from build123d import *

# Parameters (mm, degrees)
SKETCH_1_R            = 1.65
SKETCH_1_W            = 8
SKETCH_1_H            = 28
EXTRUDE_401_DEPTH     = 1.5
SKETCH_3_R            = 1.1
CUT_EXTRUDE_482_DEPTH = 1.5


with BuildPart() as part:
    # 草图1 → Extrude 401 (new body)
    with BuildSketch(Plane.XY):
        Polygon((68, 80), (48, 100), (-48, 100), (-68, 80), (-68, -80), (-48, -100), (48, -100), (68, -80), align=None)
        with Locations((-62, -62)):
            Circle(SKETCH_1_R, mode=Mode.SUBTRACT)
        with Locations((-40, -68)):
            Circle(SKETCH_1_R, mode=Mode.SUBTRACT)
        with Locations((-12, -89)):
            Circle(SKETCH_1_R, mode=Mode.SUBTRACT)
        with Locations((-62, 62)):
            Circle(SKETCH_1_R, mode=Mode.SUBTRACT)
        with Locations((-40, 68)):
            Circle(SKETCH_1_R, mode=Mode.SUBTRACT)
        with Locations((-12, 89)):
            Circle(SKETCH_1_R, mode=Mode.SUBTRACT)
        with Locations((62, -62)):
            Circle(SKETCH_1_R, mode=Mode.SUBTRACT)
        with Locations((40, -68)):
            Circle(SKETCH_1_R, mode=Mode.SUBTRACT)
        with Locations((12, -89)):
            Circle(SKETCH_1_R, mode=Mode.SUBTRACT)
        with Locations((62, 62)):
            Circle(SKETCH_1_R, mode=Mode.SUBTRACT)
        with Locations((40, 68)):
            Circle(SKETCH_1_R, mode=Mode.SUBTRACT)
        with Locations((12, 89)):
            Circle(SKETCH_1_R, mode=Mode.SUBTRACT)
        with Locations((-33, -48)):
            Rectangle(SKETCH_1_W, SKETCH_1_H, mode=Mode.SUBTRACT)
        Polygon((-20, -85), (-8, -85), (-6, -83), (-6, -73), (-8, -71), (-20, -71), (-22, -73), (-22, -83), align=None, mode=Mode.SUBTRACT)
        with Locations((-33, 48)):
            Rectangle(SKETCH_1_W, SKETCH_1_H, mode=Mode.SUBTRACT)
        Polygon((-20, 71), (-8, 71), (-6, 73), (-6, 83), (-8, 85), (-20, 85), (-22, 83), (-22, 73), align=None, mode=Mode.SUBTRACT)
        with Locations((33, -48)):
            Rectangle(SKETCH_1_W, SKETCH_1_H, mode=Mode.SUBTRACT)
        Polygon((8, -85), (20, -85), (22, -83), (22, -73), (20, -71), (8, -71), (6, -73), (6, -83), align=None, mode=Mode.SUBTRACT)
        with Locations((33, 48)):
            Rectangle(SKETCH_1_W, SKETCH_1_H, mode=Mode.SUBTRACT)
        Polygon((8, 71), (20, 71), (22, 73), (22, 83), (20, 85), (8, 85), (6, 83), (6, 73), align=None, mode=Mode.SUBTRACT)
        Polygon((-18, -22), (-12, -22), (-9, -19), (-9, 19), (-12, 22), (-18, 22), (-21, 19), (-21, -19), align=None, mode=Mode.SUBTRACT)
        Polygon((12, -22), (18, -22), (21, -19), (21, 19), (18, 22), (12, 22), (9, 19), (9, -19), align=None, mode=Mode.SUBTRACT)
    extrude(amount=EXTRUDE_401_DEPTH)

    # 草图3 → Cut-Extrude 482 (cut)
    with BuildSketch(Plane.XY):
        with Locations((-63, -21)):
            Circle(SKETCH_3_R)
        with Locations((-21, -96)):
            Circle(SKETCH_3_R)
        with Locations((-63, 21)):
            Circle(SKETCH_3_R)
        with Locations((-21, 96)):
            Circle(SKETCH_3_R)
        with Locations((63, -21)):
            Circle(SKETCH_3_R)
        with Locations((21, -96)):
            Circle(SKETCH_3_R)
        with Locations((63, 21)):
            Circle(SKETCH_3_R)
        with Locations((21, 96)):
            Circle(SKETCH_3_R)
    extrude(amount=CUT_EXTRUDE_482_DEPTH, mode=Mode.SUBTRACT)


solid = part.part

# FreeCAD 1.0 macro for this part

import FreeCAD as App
import Part
import Sketcher

V = App.Vector
Q = App.Units.Quantity


def add_polygon(sketch, points):
    """Adds a closed chain of lines whose ends are joined by coincident constraints."""
    first, n = sketch.GeometryCount, len(points)
    for a, b in zip(points, points[1:] + points[:1]):
        sketch.addGeometry(Part.LineSegment(App.Vector(*a, 0), App.Vector(*b, 0)), False)
    for i in range(n):
        sketch.addConstraint(Sketcher.Constraint("Coincident", first + i, 2, first + (i + 1) % n, 1))

doc = App.newDocument("Part")
body = doc.addObject("PartDesign::Body", "Body")

sketch1 = doc.addObject("Sketcher::SketchObject", "Sketch")
body.addObject(sketch1)
sketch1.AttachmentSupport = (doc.XY_Plane, [""])
sketch1.MapMode = "FlatFace"
add_polygon(sketch1, [(68, 80), (48, 100), (-48, 100), (-68, 80), (-68, -80), (-48, -100), (48, -100), (68, -80)])
sketch1.addGeometry(Part.Circle(V(-40, -68, 0), V(0, 0, 1), 1.6), False)
sketch1.addGeometry(Part.Circle(V(-62, -62, 0), V(0, 0, 1), 1.6), False)
add_polygon(sketch1, [(-29, -62), (-37, -62), (-37, -34), (-29, -34)])
sketch1.addGeometry(Part.Circle(V(-12, -89, 0), V(0, 0, 1), 1.6), False)
add_polygon(sketch1, [(-8, -85), (-20, -85), (-22, -83), (-22, -73), (-20, -71), (-8, -71), (-6, -73), (-6, -83)])
sketch1.addGeometry(Part.Circle(V(12, -89, 0), V(0, 0, 1), 1.6), False)
add_polygon(sketch1, [(20, -85), (8, -85), (6, -83), (6, -73), (8, -71), (20, -71), (22, -73), (22, -83)])
sketch1.addGeometry(Part.Circle(V(40, -68, 0), V(0, 0, 1), 1.6), False)
add_polygon(sketch1, [(37, -62), (29, -62), (29, -34), (37, -34)])
sketch1.addGeometry(Part.Circle(V(62, -62, 0), V(0, 0, 1), 1.6), False)
add_polygon(sketch1, [(-12, -22), (-18, -22), (-21, -19), (-21, 19), (-18, 22), (-12, 22), (-9, 19), (-9, -19)])
sketch1.addGeometry(Part.Circle(V(-62, 62, 0), V(0, 0, 1), 1.6), False)
add_polygon(sketch1, [(-29, 34), (-37, 34), (-37, 62), (-29, 62)])
sketch1.addGeometry(Part.Circle(V(-40, 68, 0), V(0, 0, 1), 1.6), False)
add_polygon(sketch1, [(-8, 71), (-20, 71), (-22, 73), (-22, 83), (-20, 85), (-8, 85), (-6, 83), (-6, 73)])
sketch1.addGeometry(Part.Circle(V(-12, 89, 0), V(0, 0, 1), 1.6), False)
add_polygon(sketch1, [(18, -22), (12, -22), (9, -19), (9, 19), (12, 22), (18, 22), (21, 19), (21, -19)])
add_polygon(sketch1, [(20, 71), (8, 71), (6, 73), (6, 83), (8, 85), (20, 85), (22, 83), (22, 73)])
sketch1.addGeometry(Part.Circle(V(12, 89, 0), V(0, 0, 1), 1.6), False)
add_polygon(sketch1, [(37, 34), (29, 34), (29, 62), (37, 62)])
sketch1.addGeometry(Part.Circle(V(62, 62, 0), V(0, 0, 1), 1.6), False)
sketch1.addGeometry(Part.Circle(V(40, 68, 0), V(0, 0, 1), 1.6), False)
sketch1.addConstraint(Sketcher.Constraint("Horizontal", 1))
sketch1.addConstraint(Sketcher.Constraint("Vertical", 3))
sketch1.addConstraint(Sketcher.Constraint("Horizontal", 5))
sketch1.addConstraint(Sketcher.Constraint("Vertical", 7))
sketch1.addConstraint(Sketcher.Constraint("Horizontal", 10))
sketch1.addConstraint(Sketcher.Constraint("Vertical", 11))
sketch1.addConstraint(Sketcher.Constraint("Horizontal", 12))
sketch1.addConstraint(Sketcher.Constraint("Vertical", 13))
sketch1.addConstraint(Sketcher.Constraint("Horizontal", 15))
sketch1.addConstraint(Sketcher.Constraint("Vertical", 17))
sketch1.addConstraint(Sketcher.Constraint("Horizontal", 19))
sketch1.addConstraint(Sketcher.Constraint("Vertical", 21))
sketch1.addConstraint(Sketcher.Constraint("Horizontal", 24))
sketch1.addConstraint(Sketcher.Constraint("Vertical", 26))
sketch1.addConstraint(Sketcher.Constraint("Horizontal", 28))
sketch1.addConstraint(Sketcher.Constraint("Vertical", 30))
sketch1.addConstraint(Sketcher.Constraint("Horizontal", 33))
sketch1.addConstraint(Sketcher.Constraint("Vertical", 34))
sketch1.addConstraint(Sketcher.Constraint("Horizontal", 35))
sketch1.addConstraint(Sketcher.Constraint("Vertical", 36))
sketch1.addConstraint(Sketcher.Constraint("Horizontal", 38))
sketch1.addConstraint(Sketcher.Constraint("Vertical", 40))
sketch1.addConstraint(Sketcher.Constraint("Horizontal", 42))
sketch1.addConstraint(Sketcher.Constraint("Vertical", 44))
sketch1.addConstraint(Sketcher.Constraint("Horizontal", 47))
sketch1.addConstraint(Sketcher.Constraint("Vertical", 48))
sketch1.addConstraint(Sketcher.Constraint("Horizontal", 49))
sketch1.addConstraint(Sketcher.Constraint("Vertical", 50))
sketch1.addConstraint(Sketcher.Constraint("Horizontal", 52))
sketch1.addConstraint(Sketcher.Constraint("Vertical", 54))
sketch1.addConstraint(Sketcher.Constraint("Horizontal", 56))
sketch1.addConstraint(Sketcher.Constraint("Vertical", 58))
sketch1.addConstraint(Sketcher.Constraint("Horizontal", 61))
sketch1.addConstraint(Sketcher.Constraint("Vertical", 63))
sketch1.addConstraint(Sketcher.Constraint("Horizontal", 65))
sketch1.addConstraint(Sketcher.Constraint("Vertical", 67))
sketch1.addConstraint(Sketcher.Constraint("Horizontal", 69))
sketch1.addConstraint(Sketcher.Constraint("Vertical", 71))
sketch1.addConstraint(Sketcher.Constraint("Horizontal", 73))
sketch1.addConstraint(Sketcher.Constraint("Vertical", 75))
sketch1.addConstraint(Sketcher.Constraint("Horizontal", 78))
sketch1.addConstraint(Sketcher.Constraint("Vertical", 79))
sketch1.addConstraint(Sketcher.Constraint("Horizontal", 80))
sketch1.addConstraint(Sketcher.Constraint("Vertical", 81))
sketch1.addConstraint(Sketcher.Constraint("Equal", 8, 9))
sketch1.addConstraint(Sketcher.Constraint("Equal", 9, 14))
sketch1.addConstraint(Sketcher.Constraint("Equal", 14, 23))
sketch1.addConstraint(Sketcher.Constraint("Equal", 23, 32))
sketch1.addConstraint(Sketcher.Constraint("Equal", 32, 37))
sketch1.addConstraint(Sketcher.Constraint("Equal", 37, 46))
sketch1.addConstraint(Sketcher.Constraint("Equal", 46, 51))
sketch1.addConstraint(Sketcher.Constraint("Equal", 51, 60))
sketch1.addConstraint(Sketcher.Constraint("Equal", 60, 77))
sketch1.addConstraint(Sketcher.Constraint("Equal", 77, 82))
sketch1.addConstraint(Sketcher.Constraint("Equal", 82, 83))
sketch1.addConstraint(Sketcher.Constraint("Symmetric", 37, 3, 46, 3, -1, 1))
sketch1.addConstraint(Sketcher.Constraint("Symmetric", 32, 3, 51, 3, -1, 1))
sketch1.addConstraint(Sketcher.Constraint("Symmetric", 23, 3, 60, 3, -1, 1))
sketch1.addConstraint(Sketcher.Constraint("Symmetric", 14, 3, 77, 3, -1, 1))
sketch1.addConstraint(Sketcher.Constraint("Symmetric", 9, 3, 82, 3, -1, 1))
sketch1.addConstraint(Sketcher.Constraint("Symmetric", 8, 3, 83, 3, -1, 1))
sketch1.addConstraint(Sketcher.Constraint("Symmetric", 0, 2, 4, 2, -1, 1))
sketch1.addConstraint(Sketcher.Constraint("Symmetric", 2, 2, 6, 2, -1, 1))
sketch1.addConstraint(Sketcher.Constraint("Symmetric", 35, 2, 47, 2, -1, 1))
sketch1.addConstraint(Sketcher.Constraint("Symmetric", 33, 2, 49, 2, -1, 1))
sketch1.addConstraint(Sketcher.Constraint("Symmetric", 28, 2, 52, 2, -1, 1))
sketch1.addConstraint(Sketcher.Constraint("Symmetric", 29, 2, 53, 2, -1, 1))
sketch1.addConstraint(Sketcher.Constraint("Symmetric", 31, 2, 55, 2, -1, 1))
sketch1.addConstraint(Sketcher.Constraint("Symmetric", 25, 2, 57, 2, -1, 1))
sketch1.addConstraint(Sketcher.Constraint("Symmetric", 42, 2, 61, 2, -1, 1))
sketch1.addConstraint(Sketcher.Constraint("Symmetric", 43, 2, 62, 2, -1, 1))
sketch1.addConstraint(Sketcher.Constraint("Symmetric", 45, 2, 64, 2, -1, 1))
sketch1.addConstraint(Sketcher.Constraint("Symmetric", 39, 2, 66, 2, -1, 1))
sketch1.addConstraint(Sketcher.Constraint("Symmetric", 19, 2, 69, 2, -1, 1))
sketch1.addConstraint(Sketcher.Constraint("Symmetric", 20, 2, 70, 2, -1, 1))
sketch1.addConstraint(Sketcher.Constraint("Symmetric", 22, 2, 72, 2, -1, 1))
sketch1.addConstraint(Sketcher.Constraint("Symmetric", 16, 2, 74, 2, -1, 1))
sketch1.addConstraint(Sketcher.Constraint("Symmetric", 12, 2, 78, 2, -1, 1))
sketch1.addConstraint(Sketcher.Constraint("Symmetric", 10, 2, 80, 2, -1, 1))
sketch1.addConstraint(Sketcher.Constraint("Symmetric", 14, 3, 23, 3, -2))
sketch1.addConstraint(Sketcher.Constraint("Symmetric", 8, 3, 32, 3, -2))
sketch1.addConstraint(Sketcher.Constraint("Symmetric", 9, 3, 37, 3, -2))
sketch1.addConstraint(Sketcher.Constraint("Symmetric", 22, 2, 24, 2, -2))
sketch1.addConstraint(Sketcher.Constraint("Symmetric", 21, 2, 25, 2, -2))
sketch1.addConstraint(Sketcher.Constraint("Symmetric", 19, 2, 27, 2, -2))
sketch1.addConstraint(Sketcher.Constraint("Symmetric", 17, 2, 29, 2, -2))
sketch1.addConstraint(Sketcher.Constraint("Symmetric", 13, 2, 33, 2, -2))
sketch1.addConstraint(Sketcher.Constraint("Symmetric", 11, 2, 35, 2, -2))
sketch1.addConstraint(Sketcher.Constraint("Symmetric", 45, 2, 61, 2, -2))
sketch1.addConstraint(Sketcher.Constraint("Perpendicular", 0, 2))
sketch1.addConstraint(Sketcher.Constraint("Perpendicular", 2, 4))
sketch1.addConstraint(Sketcher.Constraint("Perpendicular", 4, 6))
sketch1.addConstraint(Sketcher.Constraint("Perpendicular", 6, 16))
sketch1.addConstraint(Sketcher.Constraint("Perpendicular", 16, 18))
sketch1.addConstraint(Sketcher.Constraint("Perpendicular", 18, 20))
sketch1.addConstraint(Sketcher.Constraint("Perpendicular", 20, 22))
sketch1.addConstraint(Sketcher.Constraint("Perpendicular", 22, 25))
sketch1.addConstraint(Sketcher.Constraint("Perpendicular", 25, 27))
sketch1.addConstraint(Sketcher.Constraint("Perpendicular", 27, 29))
sketch1.addConstraint(Sketcher.Constraint("Perpendicular", 29, 31))
sketch1.addConstraint(Sketcher.Constraint("Perpendicular", 31, 39))
sketch1.addConstraint(Sketcher.Constraint("Perpendicular", 39, 41))
sketch1.addConstraint(Sketcher.Constraint("Perpendicular", 41, 43))
sketch1.addConstraint(Sketcher.Constraint("Perpendicular", 43, 45))
sketch1.addConstraint(Sketcher.Constraint("Perpendicular", 53, 55))
sketch1.addConstraint(Sketcher.Constraint("Perpendicular", 55, 57))
sketch1.addConstraint(Sketcher.Constraint("Perpendicular", 57, 59))
sketch1.addConstraint(Sketcher.Constraint("Perpendicular", 62, 64))
sketch1.addConstraint(Sketcher.Constraint("Perpendicular", 64, 66))
sketch1.addConstraint(Sketcher.Constraint("Perpendicular", 66, 68))
sketch1.addConstraint(Sketcher.Constraint("Perpendicular", 70, 72))
sketch1.addConstraint(Sketcher.Constraint("Perpendicular", 72, 74))
sketch1.addConstraint(Sketcher.Constraint("Perpendicular", 74, 76))
sketch1.addConstraint(Sketcher.Constraint("Horizontal", 3, 2, 6, 2))
sketch1.addConstraint(Sketcher.Constraint("Horizontal", 37, 3, 10, 2))
sketch1.addConstraint(Sketcher.Constraint("Horizontal", 17, 2, 20, 2))
sketch1.addConstraint(Sketcher.Constraint("Horizontal", 16, 2, 21, 2))
sketch1.addConstraint(Sketcher.Constraint("Horizontal", 25, 2, 30, 2))
sketch1.addConstraint(Sketcher.Constraint("Horizontal", 40, 2, 43, 2))
sketch1.addConstraint(Sketcher.Constraint("Horizontal", 39, 2, 44, 2))
sketch1.addConstraint(Sketcher.Constraint("Horizontal", 53, 2, 58, 2))
sketch1.addConstraint(Sketcher.Constraint("Horizontal", 62, 2, 67, 2))
sketch1.addConstraint(Sketcher.Constraint("Horizontal", 70, 2, 75, 2))
sketch1.addConstraint(Sketcher.Constraint("Vertical", 15, 2, 18, 2))
sketch1.addConstraint(Sketcher.Constraint("Vertical", 60, 3, 42, 2))
sketch1.addConstraint(Sketcher.Constraint("Diameter", 8, Q("3.3 mm")))
sketch1.addConstraint(Sketcher.Constraint("DistanceX", 1, 2, 1, 1, Q("96 mm")))
sketch1.addConstraint(Sketcher.Constraint("DistanceX", 10, 2, 10, 1, Q("8 mm")))
sketch1.addConstraint(Sketcher.Constraint("DistanceX", 15, 2, 15, 1, Q("12 mm")))
sketch1.addConstraint(Sketcher.Constraint("DistanceX", 38, 2, 38, 1, Q("6 mm")))
sketch1.addConstraint(Sketcher.Constraint("DistanceY", 3, 2, 3, 1, Q("160 mm")))
sketch1.addConstraint(Sketcher.Constraint("DistanceY", 11, 1, 11, 2, Q("28 mm")))
sketch1.addConstraint(Sketcher.Constraint("DistanceY", 17, 1, 17, 2, Q("10 mm")))
sketch1.addConstraint(Sketcher.Constraint("DistanceY", 40, 1, 40, 2, Q("38 mm")))
sketch1.addConstraint(Sketcher.Constraint("DistanceX", 8, 3, -1, 1, Q("40 mm")))
sketch1.addConstraint(Sketcher.Constraint("DistanceY", 8, 3, -1, 1, Q("68 mm")))
sketch1.addConstraint(Sketcher.Constraint("DistanceX", 9, 3, -1, 1, Q("62 mm")))
sketch1.addConstraint(Sketcher.Constraint("DistanceY", 9, 3, -1, 1, Q("62 mm")))
sketch1.addConstraint(Sketcher.Constraint("DistanceX", 14, 3, -1, 1, Q("12 mm")))
sketch1.addConstraint(Sketcher.Constraint("DistanceY", 14, 3, -1, 1, Q("89 mm")))
sketch1.addConstraint(Sketcher.Constraint("DistanceY", -1, 1, 0, 2, Q("100 mm")))
sketch1.addConstraint(Sketcher.Constraint("DistanceX", 10, 2, -1, 1, Q("37 mm")))
sketch1.addConstraint(Sketcher.Constraint("DistanceX", 15, 2, -1, 1, Q("20 mm")))
sketch1.addConstraint(Sketcher.Constraint("DistanceY", 15, 2, -1, 1, Q("85 mm")))
sketch1.addConstraint(Sketcher.Constraint("DistanceX", 16, 2, -1, 1, Q("22 mm")))
sketch1.addConstraint(Sketcher.Constraint("DistanceY", 38, 2, -1, 1, Q("22 mm")))
pad1 = doc.addObject("PartDesign::Pad", "Pad")
body.addObject(pad1)
pad1.Profile = sketch1
pad1.Length = 1.5

sketch2 = doc.addObject("Sketcher::SketchObject", "Sketch001")
body.addObject(sketch2)
sketch2.AttachmentSupport = (doc.XY_Plane, [""])
sketch2.MapMode = "FlatFace"
sketch2.addGeometry(Part.Circle(V(-63, -21, 0), V(0, 0, 1), 1.1), False)
sketch2.addGeometry(Part.Circle(V(-21, -96, 0), V(0, 0, 1), 1.1), False)
sketch2.addGeometry(Part.Circle(V(-63, 21, 0), V(0, 0, 1), 1.1), False)
sketch2.addGeometry(Part.Circle(V(-21, 96, 0), V(0, 0, 1), 1.1), False)
sketch2.addGeometry(Part.Circle(V(63, -21, 0), V(0, 0, 1), 1.1), False)
sketch2.addGeometry(Part.Circle(V(21, -96, 0), V(0, 0, 1), 1.1), False)
sketch2.addGeometry(Part.Circle(V(63, 21, 0), V(0, 0, 1), 1.1), False)
sketch2.addGeometry(Part.Circle(V(21, 96, 0), V(0, 0, 1), 1.1), False)
sketch2.addConstraint(Sketcher.Constraint("Equal", 0, 1))
sketch2.addConstraint(Sketcher.Constraint("Equal", 1, 2))
sketch2.addConstraint(Sketcher.Constraint("Equal", 2, 3))
sketch2.addConstraint(Sketcher.Constraint("Equal", 3, 4))
sketch2.addConstraint(Sketcher.Constraint("Equal", 4, 5))
sketch2.addConstraint(Sketcher.Constraint("Equal", 5, 6))
sketch2.addConstraint(Sketcher.Constraint("Equal", 6, 7))
sketch2.addConstraint(Sketcher.Constraint("Symmetric", 2, 3, 4, 3, -1, 1))
sketch2.addConstraint(Sketcher.Constraint("Symmetric", 3, 3, 5, 3, -1, 1))
sketch2.addConstraint(Sketcher.Constraint("Symmetric", 0, 3, 6, 3, -1, 1))
sketch2.addConstraint(Sketcher.Constraint("Symmetric", 1, 3, 7, 3, -1, 1))
sketch2.addConstraint(Sketcher.Constraint("Symmetric", 0, 3, 4, 3, -2))
sketch2.addConstraint(Sketcher.Constraint("Symmetric", 1, 3, 5, 3, -2))
sketch2.addConstraint(Sketcher.Constraint("Diameter", 0, Q("2.2 mm")))
sketch2.addConstraint(Sketcher.Constraint("DistanceX", 0, 3, -1, 1, Q("63 mm")))
sketch2.addConstraint(Sketcher.Constraint("DistanceY", 0, 3, -1, 1, Q("21 mm")))
sketch2.addConstraint(Sketcher.Constraint("DistanceX", 1, 3, -1, 1, Q("21 mm")))
sketch2.addConstraint(Sketcher.Constraint("DistanceY", 1, 3, -1, 1, Q("96 mm")))
pocket1 = doc.addObject("PartDesign::Pocket", "Pocket")
body.addObject(pocket1)
pocket1.Profile = sketch2
pocket1.Length = 1.5
pocket1.Reversed = True

doc.recompute()
